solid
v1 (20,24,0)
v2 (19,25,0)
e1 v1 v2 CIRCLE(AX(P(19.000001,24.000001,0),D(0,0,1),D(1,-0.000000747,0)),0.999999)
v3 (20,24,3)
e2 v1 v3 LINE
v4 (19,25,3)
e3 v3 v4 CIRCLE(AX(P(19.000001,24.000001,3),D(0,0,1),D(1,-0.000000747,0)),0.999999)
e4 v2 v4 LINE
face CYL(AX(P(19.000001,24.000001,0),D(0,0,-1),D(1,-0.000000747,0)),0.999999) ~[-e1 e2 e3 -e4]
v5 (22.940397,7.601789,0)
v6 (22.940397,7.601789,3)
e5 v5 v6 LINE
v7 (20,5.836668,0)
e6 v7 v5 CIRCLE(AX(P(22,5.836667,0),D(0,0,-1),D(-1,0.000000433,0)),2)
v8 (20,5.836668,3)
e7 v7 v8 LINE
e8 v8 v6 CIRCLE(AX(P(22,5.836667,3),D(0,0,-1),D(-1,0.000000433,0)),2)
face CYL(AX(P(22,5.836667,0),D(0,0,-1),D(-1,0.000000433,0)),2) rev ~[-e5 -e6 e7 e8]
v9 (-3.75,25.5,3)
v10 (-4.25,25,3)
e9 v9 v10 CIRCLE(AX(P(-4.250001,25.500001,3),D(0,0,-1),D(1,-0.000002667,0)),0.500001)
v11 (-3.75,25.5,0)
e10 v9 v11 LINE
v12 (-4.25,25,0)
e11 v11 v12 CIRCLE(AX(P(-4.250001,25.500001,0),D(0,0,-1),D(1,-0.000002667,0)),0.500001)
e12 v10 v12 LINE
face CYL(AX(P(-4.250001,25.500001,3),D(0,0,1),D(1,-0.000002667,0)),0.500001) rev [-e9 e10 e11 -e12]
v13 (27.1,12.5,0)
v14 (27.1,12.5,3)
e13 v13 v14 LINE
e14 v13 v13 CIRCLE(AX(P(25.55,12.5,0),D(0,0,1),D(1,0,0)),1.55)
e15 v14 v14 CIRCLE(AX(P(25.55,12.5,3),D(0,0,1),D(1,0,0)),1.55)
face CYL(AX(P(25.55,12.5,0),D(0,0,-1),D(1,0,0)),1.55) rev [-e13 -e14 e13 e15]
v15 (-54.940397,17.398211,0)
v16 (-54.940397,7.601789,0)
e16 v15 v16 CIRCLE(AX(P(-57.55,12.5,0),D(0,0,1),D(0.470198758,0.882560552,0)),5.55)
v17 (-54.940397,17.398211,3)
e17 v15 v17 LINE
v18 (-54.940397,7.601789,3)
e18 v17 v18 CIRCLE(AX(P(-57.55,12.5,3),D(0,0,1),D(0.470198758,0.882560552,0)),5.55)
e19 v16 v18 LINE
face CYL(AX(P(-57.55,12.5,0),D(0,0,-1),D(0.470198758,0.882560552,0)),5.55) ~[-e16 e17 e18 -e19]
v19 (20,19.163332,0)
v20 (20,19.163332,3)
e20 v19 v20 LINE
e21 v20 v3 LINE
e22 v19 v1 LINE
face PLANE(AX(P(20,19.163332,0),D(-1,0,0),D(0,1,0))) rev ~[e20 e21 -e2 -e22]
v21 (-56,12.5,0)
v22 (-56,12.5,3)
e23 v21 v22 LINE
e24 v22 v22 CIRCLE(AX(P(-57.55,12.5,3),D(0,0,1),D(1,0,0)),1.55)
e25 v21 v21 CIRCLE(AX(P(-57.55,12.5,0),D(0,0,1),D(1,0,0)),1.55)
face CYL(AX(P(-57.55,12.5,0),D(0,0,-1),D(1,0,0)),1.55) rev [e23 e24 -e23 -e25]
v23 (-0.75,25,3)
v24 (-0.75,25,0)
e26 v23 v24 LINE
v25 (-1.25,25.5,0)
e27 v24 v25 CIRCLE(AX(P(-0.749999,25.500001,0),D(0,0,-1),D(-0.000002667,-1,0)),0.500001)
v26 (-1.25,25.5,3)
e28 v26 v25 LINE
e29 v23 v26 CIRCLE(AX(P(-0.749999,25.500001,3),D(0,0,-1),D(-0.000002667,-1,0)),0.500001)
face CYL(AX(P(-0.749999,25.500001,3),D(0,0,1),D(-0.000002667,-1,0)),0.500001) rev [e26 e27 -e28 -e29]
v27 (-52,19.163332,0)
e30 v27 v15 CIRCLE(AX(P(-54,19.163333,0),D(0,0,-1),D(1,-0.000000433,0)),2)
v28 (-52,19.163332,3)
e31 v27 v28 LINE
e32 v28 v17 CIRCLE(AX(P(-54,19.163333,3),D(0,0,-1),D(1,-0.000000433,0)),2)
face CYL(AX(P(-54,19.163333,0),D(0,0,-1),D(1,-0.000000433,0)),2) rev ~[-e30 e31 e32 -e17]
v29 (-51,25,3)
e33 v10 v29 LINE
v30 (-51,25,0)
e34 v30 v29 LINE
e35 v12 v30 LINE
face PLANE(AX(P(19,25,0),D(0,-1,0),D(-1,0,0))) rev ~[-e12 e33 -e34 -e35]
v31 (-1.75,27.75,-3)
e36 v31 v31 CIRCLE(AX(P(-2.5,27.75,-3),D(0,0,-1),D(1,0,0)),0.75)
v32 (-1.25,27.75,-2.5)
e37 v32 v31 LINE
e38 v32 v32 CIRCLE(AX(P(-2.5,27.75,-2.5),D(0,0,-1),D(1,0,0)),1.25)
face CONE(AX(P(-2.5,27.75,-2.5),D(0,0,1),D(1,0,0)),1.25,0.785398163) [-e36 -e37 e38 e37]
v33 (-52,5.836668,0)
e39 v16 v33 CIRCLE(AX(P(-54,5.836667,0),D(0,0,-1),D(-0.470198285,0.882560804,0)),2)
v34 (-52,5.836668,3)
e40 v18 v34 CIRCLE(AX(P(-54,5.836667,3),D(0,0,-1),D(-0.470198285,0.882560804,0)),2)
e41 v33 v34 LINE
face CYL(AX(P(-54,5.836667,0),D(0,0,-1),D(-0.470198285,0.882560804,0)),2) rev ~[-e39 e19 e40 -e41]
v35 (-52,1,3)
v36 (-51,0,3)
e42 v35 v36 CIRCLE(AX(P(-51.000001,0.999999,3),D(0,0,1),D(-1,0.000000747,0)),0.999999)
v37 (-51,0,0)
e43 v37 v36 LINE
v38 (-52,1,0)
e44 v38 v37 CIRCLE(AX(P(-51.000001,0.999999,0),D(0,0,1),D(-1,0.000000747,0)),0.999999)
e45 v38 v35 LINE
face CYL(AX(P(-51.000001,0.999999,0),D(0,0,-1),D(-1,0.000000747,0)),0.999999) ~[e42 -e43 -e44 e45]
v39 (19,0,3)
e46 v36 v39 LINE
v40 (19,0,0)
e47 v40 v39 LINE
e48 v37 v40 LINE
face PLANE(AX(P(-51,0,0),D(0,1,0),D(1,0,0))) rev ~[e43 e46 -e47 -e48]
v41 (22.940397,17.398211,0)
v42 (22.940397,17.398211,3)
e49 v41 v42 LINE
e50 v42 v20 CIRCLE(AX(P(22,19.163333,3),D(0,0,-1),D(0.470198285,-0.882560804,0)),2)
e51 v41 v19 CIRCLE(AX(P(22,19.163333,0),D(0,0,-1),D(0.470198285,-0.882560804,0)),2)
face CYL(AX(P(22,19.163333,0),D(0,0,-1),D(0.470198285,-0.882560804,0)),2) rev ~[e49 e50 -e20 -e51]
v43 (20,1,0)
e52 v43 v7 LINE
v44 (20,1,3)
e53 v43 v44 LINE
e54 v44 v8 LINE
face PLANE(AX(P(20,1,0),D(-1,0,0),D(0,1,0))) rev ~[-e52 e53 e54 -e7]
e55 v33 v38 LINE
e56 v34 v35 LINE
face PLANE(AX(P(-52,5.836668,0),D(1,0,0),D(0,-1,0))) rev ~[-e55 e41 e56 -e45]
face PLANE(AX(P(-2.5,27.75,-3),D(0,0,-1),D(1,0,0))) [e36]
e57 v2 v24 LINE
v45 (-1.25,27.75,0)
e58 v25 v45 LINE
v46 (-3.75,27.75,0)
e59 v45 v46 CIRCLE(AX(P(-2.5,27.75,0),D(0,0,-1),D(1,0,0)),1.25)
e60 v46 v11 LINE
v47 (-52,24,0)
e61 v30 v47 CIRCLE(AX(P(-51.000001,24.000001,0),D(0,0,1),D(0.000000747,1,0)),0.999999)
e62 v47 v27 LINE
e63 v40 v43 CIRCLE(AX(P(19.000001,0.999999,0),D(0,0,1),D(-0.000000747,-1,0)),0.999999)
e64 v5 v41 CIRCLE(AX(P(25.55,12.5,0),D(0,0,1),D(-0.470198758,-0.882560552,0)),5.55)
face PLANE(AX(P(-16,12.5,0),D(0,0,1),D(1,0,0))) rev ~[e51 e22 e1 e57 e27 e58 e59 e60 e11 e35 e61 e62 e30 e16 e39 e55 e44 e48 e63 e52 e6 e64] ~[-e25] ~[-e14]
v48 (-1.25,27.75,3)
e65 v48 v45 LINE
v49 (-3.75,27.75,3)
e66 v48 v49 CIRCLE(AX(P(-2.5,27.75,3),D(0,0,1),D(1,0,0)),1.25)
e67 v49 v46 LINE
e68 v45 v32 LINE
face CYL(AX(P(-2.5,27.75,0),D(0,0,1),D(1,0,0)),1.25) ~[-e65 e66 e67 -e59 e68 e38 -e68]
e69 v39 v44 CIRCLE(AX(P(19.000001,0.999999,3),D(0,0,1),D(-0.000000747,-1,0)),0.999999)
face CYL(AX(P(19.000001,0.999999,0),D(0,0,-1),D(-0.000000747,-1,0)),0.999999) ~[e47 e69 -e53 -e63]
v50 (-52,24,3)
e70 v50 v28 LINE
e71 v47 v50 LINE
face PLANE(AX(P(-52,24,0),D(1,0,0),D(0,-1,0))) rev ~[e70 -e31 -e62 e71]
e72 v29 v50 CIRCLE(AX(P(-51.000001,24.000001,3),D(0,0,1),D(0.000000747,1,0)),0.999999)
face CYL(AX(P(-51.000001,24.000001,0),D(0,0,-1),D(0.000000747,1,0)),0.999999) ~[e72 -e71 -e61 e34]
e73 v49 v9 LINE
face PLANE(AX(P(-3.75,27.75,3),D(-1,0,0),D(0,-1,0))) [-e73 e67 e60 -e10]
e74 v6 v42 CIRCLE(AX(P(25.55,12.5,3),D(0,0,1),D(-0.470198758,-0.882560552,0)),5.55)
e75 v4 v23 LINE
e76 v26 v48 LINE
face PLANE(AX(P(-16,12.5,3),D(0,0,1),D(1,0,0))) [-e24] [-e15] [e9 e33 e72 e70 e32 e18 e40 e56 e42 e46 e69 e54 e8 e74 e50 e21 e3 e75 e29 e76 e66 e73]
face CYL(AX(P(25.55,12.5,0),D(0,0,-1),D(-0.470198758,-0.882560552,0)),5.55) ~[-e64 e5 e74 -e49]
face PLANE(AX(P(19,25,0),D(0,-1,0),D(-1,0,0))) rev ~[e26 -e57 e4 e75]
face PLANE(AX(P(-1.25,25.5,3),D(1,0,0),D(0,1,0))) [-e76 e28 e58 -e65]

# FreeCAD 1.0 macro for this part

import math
import FreeCAD as App
import Part
import Sketcher


def edges_at(feature, points):
    """Names of the edges that pass closest to the given points."""
    edges = feature.Shape.Edges
    near = lambda p: min(range(len(edges)), key=lambda i: edges[i].distToShape(Part.Vertex(*p))[0])
    return sorted({f"Edge{near(p) + 1}" for p in points})

doc = App.newDocument("Part")
body = doc.addObject("PartDesign::Body", "Body")

sketch1 = body.newObject("Sketcher::SketchObject", "Sketch")
sketch1.AttachmentSupport = (doc.getObject("XY_Plane"), [""])
sketch1.MapMode = "FlatFace"
sketch1.addGeometry(Part.LineSegment(App.Vector(19, 25, 0), App.Vector(-51, 25, 0)), False)
sketch1.addGeometry(Part.ArcOfCircle(Part.Circle(App.Vector(-51, 24, 0), App.Vector(0, 0, 1), 1), math.radians(90), math.radians(180)), False)
sketch1.addGeometry(Part.LineSegment(App.Vector(-52, 24, 0), App.Vector(-52, 19.2, 0)), False)
sketch1.addGeometry(Part.ArcOfCircle(Part.Circle(App.Vector(-54, 19.2, 0), App.Vector(0, 0, 1), 2), math.radians(-118), math.radians(0)), False)
sketch1.addGeometry(Part.ArcOfCircle(Part.Circle(App.Vector(-57.6, 12.5, 0), App.Vector(0, 0, 1), 5.5), math.radians(62), math.radians(298)), False)
sketch1.addGeometry(Part.ArcOfCircle(Part.Circle(App.Vector(-54, 5.8, 0), App.Vector(0, 0, 1), 2), math.radians(0), math.radians(118)), False)
sketch1.addGeometry(Part.LineSegment(App.Vector(-52, 5.8, 0), App.Vector(-52, 1, 0)), False)
sketch1.addGeometry(Part.ArcOfCircle(Part.Circle(App.Vector(-51, 1, 0), App.Vector(0, 0, 1), 1), math.radians(180), math.radians(270)), False)
sketch1.addGeometry(Part.LineSegment(App.Vector(-51, 0, 0), App.Vector(19, 0, 0)), False)
sketch1.addGeometry(Part.ArcOfCircle(Part.Circle(App.Vector(19, 1, 0), App.Vector(0, 0, 1), 1), math.radians(-90), math.radians(0)), False)
sketch1.addGeometry(Part.LineSegment(App.Vector(20, 1, 0), App.Vector(20, 5.8, 0)), False)
sketch1.addGeometry(Part.ArcOfCircle(Part.Circle(App.Vector(22, 5.8, 0), App.Vector(0, 0, 1), 2), math.radians(62), math.radians(180)), False)
sketch1.addGeometry(Part.ArcOfCircle(Part.Circle(App.Vector(25.6, 12.5, 0), App.Vector(0, 0, 1), 5.5), math.radians(-118), math.radians(118)), False)
sketch1.addGeometry(Part.ArcOfCircle(Part.Circle(App.Vector(22, 19.2, 0), App.Vector(0, 0, 1), 2), math.radians(-180), math.radians(-62)), False)
sketch1.addGeometry(Part.LineSegment(App.Vector(20, 19.2, 0), App.Vector(20, 24, 0)), False)
sketch1.addGeometry(Part.ArcOfCircle(Part.Circle(App.Vector(19, 24, 0), App.Vector(0, 0, 1), 1), math.radians(0), math.radians(90)), False)
sketch1.addGeometry(Part.Circle(App.Vector(-57.5, 12.5, 0), App.Vector(0, 0, 1), 1.6), False)
sketch1.addGeometry(Part.Circle(App.Vector(25.6, 12.5, 0), App.Vector(0, 0, 1), 1.6), False)
sketch1.addConstraint(Sketcher.Constraint("Tangent", 0, 2, 1, 1))
sketch1.addConstraint(Sketcher.Constraint("Tangent", 1, 2, 2, 1))
sketch1.addConstraint(Sketcher.Constraint("Tangent", 2, 2, 3, 2))
sketch1.addConstraint(Sketcher.Constraint("Tangent", 3, 1, 4, 1))
sketch1.addConstraint(Sketcher.Constraint("Tangent", 4, 2, 5, 2))
sketch1.addConstraint(Sketcher.Constraint("Tangent", 5, 1, 6, 1))
sketch1.addConstraint(Sketcher.Constraint("Tangent", 6, 2, 7, 1))
sketch1.addConstraint(Sketcher.Constraint("Tangent", 7, 2, 8, 1))
sketch1.addConstraint(Sketcher.Constraint("Tangent", 8, 2, 9, 1))
sketch1.addConstraint(Sketcher.Constraint("Tangent", 9, 2, 10, 1))
sketch1.addConstraint(Sketcher.Constraint("Tangent", 10, 2, 11, 2))
sketch1.addConstraint(Sketcher.Constraint("Tangent", 11, 1, 12, 1))
sketch1.addConstraint(Sketcher.Constraint("Tangent", 12, 2, 13, 2))
sketch1.addConstraint(Sketcher.Constraint("Tangent", 13, 1, 14, 1))
sketch1.addConstraint(Sketcher.Constraint("Tangent", 14, 2, 15, 1))
sketch1.addConstraint(Sketcher.Constraint("Tangent", 15, 2, 0, 1))
sketch1.addConstraint(Sketcher.Constraint("Horizontal", 0))
sketch1.addConstraint(Sketcher.Constraint("Vertical", 2))
sketch1.addConstraint(Sketcher.Constraint("Vertical", 6))
sketch1.addConstraint(Sketcher.Constraint("Horizontal", 8))
sketch1.addConstraint(Sketcher.Constraint("Vertical", 10))
sketch1.addConstraint(Sketcher.Constraint("Vertical", 14))
sketch1.addConstraint(Sketcher.Constraint("Coincident", 16, 3, 4, 3))
sketch1.addConstraint(Sketcher.Constraint("Coincident", 17, 3, 12, 3))
sketch1.addConstraint(Sketcher.Constraint("Equal", 3, 5))
sketch1.addConstraint(Sketcher.Constraint("Equal", 1, 7))
sketch1.addConstraint(Sketcher.Constraint("Equal", 7, 9))
sketch1.addConstraint(Sketcher.Constraint("Equal", 5, 11))
sketch1.addConstraint(Sketcher.Constraint("Equal", 4, 12))
sketch1.addConstraint(Sketcher.Constraint("Equal", 11, 13))
sketch1.addConstraint(Sketcher.Constraint("Equal", 9, 15))
sketch1.addConstraint(Sketcher.Constraint("Equal", 16, 17))
sketch1.addConstraint(Sketcher.Constraint("PointOnObject", 7, 2, -1))
sketch1.addConstraint(Sketcher.Constraint("Horizontal", 5, 3, 11, 3))
sketch1.addConstraint(Sketcher.Constraint("Horizontal", 4, 3, 12, 3))
sketch1.addConstraint(Sketcher.Constraint("Horizontal", 3, 3, 13, 3))
sketch1.addConstraint(Sketcher.Constraint("Vertical", 3, 3, 5, 3))
sketch1.addConstraint(Sketcher.Constraint("Equal", 2, 6))
sketch1.addConstraint(Sketcher.Constraint("Radius", 1, 0.999999))
sketch1.addConstraint(Sketcher.Constraint("Radius", 3, 2.0))
sketch1.addConstraint(Sketcher.Constraint("Diameter", 16, 3.1))
sketch1.addConstraint(Sketcher.Constraint("DistanceX", 0, 2, 0, 1, 70.0))
sketch1.addConstraint(Sketcher.Constraint("Radius", 4, 5.55))
sketch1.addConstraint(Sketcher.Constraint("DistanceX", 1, 3, -1, 1, 51.000001))
sketch1.addConstraint(Sketcher.Constraint("DistanceY", -1, 1, 1, 3, 24.000001))
sketch1.addConstraint(Sketcher.Constraint("DistanceX", 4, 3, -1, 1, 57.55))
pad1 = body.newObject("PartDesign::Pad", "Pad")
pad1.Profile = sketch1
pad1.Length = 3

sketch2 = body.newObject("Sketcher::SketchObject", "Sketch001")
sketch2.AttachmentSupport = (doc.getObject("XY_Plane"), [""])
sketch2.MapMode = "FlatFace"
sketch2.AttachmentOffset = App.Placement(App.Vector(0, 0, 3), App.Rotation())
sketch2.addGeometry(Part.LineSegment(App.Vector(-4.2, 25, 0), App.Vector(-0.8, 25, 0)), False)
sketch2.addGeometry(Part.ArcOfCircle(Part.Circle(App.Vector(-0.7, 25.5, 0), App.Vector(0, 0, 1), 0.5), math.radians(-180), math.radians(-90)), False)
sketch2.addGeometry(Part.LineSegment(App.Vector(-1.2, 25.5, 0), App.Vector(-1.2, 27.8, 0)), False)
sketch2.addGeometry(Part.ArcOfCircle(Part.Circle(App.Vector(-2.5, 27.8, 0), App.Vector(0, 0, 1), 1.2), math.radians(0), math.radians(180)), False)
sketch2.addGeometry(Part.LineSegment(App.Vector(-3.8, 27.8, 0), App.Vector(-3.8, 25.5, 0)), False)
sketch2.addGeometry(Part.ArcOfCircle(Part.Circle(App.Vector(-4.3, 25.5, 0), App.Vector(0, 0, 1), 0.5), math.radians(-90), math.radians(0)), False)
sketch2.addConstraint(Sketcher.Constraint("Coincident", 0, 2, 1, 2))
sketch2.addConstraint(Sketcher.Constraint("Coincident", 1, 1, 2, 1))
sketch2.addConstraint(Sketcher.Constraint("Tangent", 2, 2, 3, 1))
sketch2.addConstraint(Sketcher.Constraint("Tangent", 3, 2, 4, 1))
sketch2.addConstraint(Sketcher.Constraint("Coincident", 4, 2, 5, 2))
sketch2.addConstraint(Sketcher.Constraint("Coincident", 5, 1, 0, 1))
sketch2.addConstraint(Sketcher.Constraint("Horizontal", 0))
sketch2.addConstraint(Sketcher.Constraint("Vertical", 2))
sketch2.addConstraint(Sketcher.Constraint("Vertical", 4))
sketch2.addConstraint(Sketcher.Constraint("Equal", 1, 5))
sketch2.addConstraint(Sketcher.Constraint("Horizontal", 5, 3, 1, 1))
sketch2.addConstraint(Sketcher.Constraint("Horizontal", 1, 1, 4, 2))
sketch2.addConstraint(Sketcher.Constraint("Vertical", 1, 3, 0, 2))
sketch2.addConstraint(Sketcher.Constraint("Radius", 1, 0.500001))
sketch2.addConstraint(Sketcher.Constraint("Radius", 3, 1.25))
sketch2.addConstraint(Sketcher.Constraint("DistanceX", 0, 1, 0, 2, 3.5))
sketch2.addConstraint(Sketcher.Constraint("DistanceY", -1, 1, 0, 2, 25.0))
sketch2.addConstraint(Sketcher.Constraint("DistanceY", 2, 1, 2, 2, 2.25))
sketch2.addConstraint(Sketcher.Constraint("DistanceX", 3, 3, -1, 1, 2.5))
pad2 = body.newObject("PartDesign::Pad", "Pad001")
pad2.Profile = sketch2
pad2.Length = 3
pad2.Reversed = True

sketch3 = body.newObject("Sketcher::SketchObject", "Sketch002")
sketch3.AttachmentSupport = (doc.getObject("XY_Plane"), [""])
sketch3.MapMode = "FlatFace"
sketch3.addGeometry(Part.Circle(App.Vector(-2.5, 27.8, 0), App.Vector(0, 0, 1), 1.2), False)
sketch3.addConstraint(Sketcher.Constraint("Diameter", 0, 2.5))
sketch3.addConstraint(Sketcher.Constraint("DistanceX", 0, 3, -1, 1, 2.5))
sketch3.addConstraint(Sketcher.Constraint("DistanceY", -1, 1, 0, 3, 27.75))
pad3 = body.newObject("PartDesign::Pad", "Pad002")
pad3.Profile = sketch3
pad3.Length = 3
pad3.Reversed = True
doc.recompute()

chamfer = body.newObject("PartDesign::Chamfer", "Chamfer")
chamfer.Base = (pad3, edges_at(pad3, [(-3.75, 27.75, -3)]))
chamfer.Size = 0.5

doc.recompute()
